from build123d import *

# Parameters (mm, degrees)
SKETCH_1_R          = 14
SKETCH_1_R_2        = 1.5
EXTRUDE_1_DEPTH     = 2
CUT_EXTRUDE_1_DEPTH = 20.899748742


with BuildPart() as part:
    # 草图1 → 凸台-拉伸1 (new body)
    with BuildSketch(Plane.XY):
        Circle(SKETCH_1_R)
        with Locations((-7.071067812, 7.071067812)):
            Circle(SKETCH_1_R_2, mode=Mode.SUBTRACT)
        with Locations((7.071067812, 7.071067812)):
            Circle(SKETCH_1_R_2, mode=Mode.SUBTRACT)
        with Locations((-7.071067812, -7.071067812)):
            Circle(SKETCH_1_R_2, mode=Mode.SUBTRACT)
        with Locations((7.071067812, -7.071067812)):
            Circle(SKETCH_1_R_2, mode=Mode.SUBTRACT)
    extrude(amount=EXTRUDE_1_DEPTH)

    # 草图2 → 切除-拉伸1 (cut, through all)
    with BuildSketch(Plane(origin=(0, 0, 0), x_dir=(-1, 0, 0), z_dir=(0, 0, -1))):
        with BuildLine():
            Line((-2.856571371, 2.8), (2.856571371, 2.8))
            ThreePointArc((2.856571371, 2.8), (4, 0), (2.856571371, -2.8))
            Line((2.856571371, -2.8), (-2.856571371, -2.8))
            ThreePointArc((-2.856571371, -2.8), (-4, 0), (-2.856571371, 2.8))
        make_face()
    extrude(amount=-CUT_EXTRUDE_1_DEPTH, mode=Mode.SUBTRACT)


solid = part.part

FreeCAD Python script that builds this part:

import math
import FreeCAD as App
import Part
import Sketcher
from FreeCAD import Vector

doc = App.newDocument("Part")
params = doc.addObject("Spreadsheet::Sheet", "Params")
for row, (alias, value) in enumerate([
    ("sketch1_diameter", "28 mm"),
    ("sketch1_diameter2", "3 mm"),
    ("pad1_length", "2 mm"),
    ("sketch2_radius", "4 mm"),
], start=1):
    params.set(f"A{row}", alias)
    params.set(f"B{row}", "=" + value)
    params.setAlias(f"B{row}", alias)

body = doc.addObject("PartDesign::Body", "Body")

# Sketch on XY plane
sketch1 = doc.addObject("Sketcher::SketchObject", "Sketch")
body.addObject(sketch1)
sketch1.AttachmentSupport = (doc.XY_Plane, [""])
sketch1.MapMode = "FlatFace"
sketch1.addGeometry([
    Part.Circle(Vector(0, 0, 0), Vector(0, 0, 1), 14),  # 0
    Part.Circle(Vector(-7.1, -7.1, 0), Vector(0, 0, 1), 1.5),  # 1
    Part.Circle(Vector(7.1, -7.1, 0), Vector(0, 0, 1), 1.5),  # 2
    Part.Circle(Vector(-7.1, 7.1, 0), Vector(0, 0, 1), 1.5),  # 3
    Part.Circle(Vector(7.1, 7.1, 0), Vector(0, 0, 1), 1.5),  # 4
], False)
sketch1.addConstraint([
    Sketcher.Constraint("Coincident", 0, 3, -1, 1),
    Sketcher.Constraint("Equal", 1, 2),
    Sketcher.Constraint("Equal", 2, 3),
    Sketcher.Constraint("Equal", 3, 4),
    Sketcher.Constraint("Symmetric", 2, 3, 3, 3, -1, 1),
    Sketcher.Constraint("Symmetric", 1, 3, 4, 3, -1, 1),
    Sketcher.Constraint("Symmetric", 1, 3, 2, 3, -2),
    Sketcher.Constraint("Diameter", 0, 28.0),
    Sketcher.Constraint("Diameter", 1, 3.0),
    Sketcher.Constraint("DistanceX", 1, 3, -1, 1, 7.071068),
    Sketcher.Constraint("DistanceY", 1, 3, -1, 1, 7.071068),
])
sketch1.setExpression("Constraints[7]", "Params.sketch1_diameter")
sketch1.setExpression("Constraints[8]", "Params.sketch1_diameter2")
pad1 = doc.addObject("PartDesign::Pad", "Pad")
body.addObject(pad1)
pad1.Profile = sketch1
pad1.setExpression("Length", "Params.pad1_length")

# Sketch on XY plane
sketch2 = doc.addObject("Sketcher::SketchObject", "Sketch001")
body.addObject(sketch2)
sketch2.AttachmentSupport = (doc.XY_Plane, [""])
sketch2.MapMode = "FlatFace"
sketch2.addGeometry([
    Part.LineSegment(Vector(-2.9, 2.8, 0), Vector(2.9, 2.8, 0)),
    Part.ArcOfCircle(Part.Circle(Vector(0, 0, 0), Vector(0, 0, 1), 4), math.radians(-44), math.radians(44)),
    Part.LineSegment(Vector(2.9, -2.8, 0), Vector(-2.9, -2.8, 0)),
    Part.ArcOfCircle(Part.Circle(Vector(0, 0, 0), Vector(0, 0, 1), 4), math.radians(136), math.radians(224)),
], False)
sketch2.addConstraint([
    Sketcher.Constraint("Coincident", 0, 2, 1, 2),
    Sketcher.Constraint("Coincident", 1, 1, 2, 1),
    Sketcher.Constraint("Coincident", 2, 2, 3, 2),
    Sketcher.Constraint("Coincident", 3, 1, 0, 1),
    Sketcher.Constraint("Horizontal", 0),
    Sketcher.Constraint("Horizontal", 2),
    Sketcher.Constraint("Coincident", 1, 3, -1, 1),
    Sketcher.Constraint("Coincident", 3, 3, -1, 1),
    Sketcher.Constraint("Equal", 1, 3),
    Sketcher.Constraint("Vertical", 0, 2, 1, 1),
    Sketcher.Constraint("Radius", 1, 4.0),
    Sketcher.Constraint("DistanceY", -1, 1, 0, 2, 2.8),
])
sketch2.setExpression("Constraints[10]", "Params.sketch2_radius")
pocket1 = doc.addObject("PartDesign::Pocket", "Pocket")
body.addObject(pocket1)
pocket1.Profile = sketch2
pocket1.Type = "ThroughAll"
pocket1.Reversed = True

doc.recompute()
